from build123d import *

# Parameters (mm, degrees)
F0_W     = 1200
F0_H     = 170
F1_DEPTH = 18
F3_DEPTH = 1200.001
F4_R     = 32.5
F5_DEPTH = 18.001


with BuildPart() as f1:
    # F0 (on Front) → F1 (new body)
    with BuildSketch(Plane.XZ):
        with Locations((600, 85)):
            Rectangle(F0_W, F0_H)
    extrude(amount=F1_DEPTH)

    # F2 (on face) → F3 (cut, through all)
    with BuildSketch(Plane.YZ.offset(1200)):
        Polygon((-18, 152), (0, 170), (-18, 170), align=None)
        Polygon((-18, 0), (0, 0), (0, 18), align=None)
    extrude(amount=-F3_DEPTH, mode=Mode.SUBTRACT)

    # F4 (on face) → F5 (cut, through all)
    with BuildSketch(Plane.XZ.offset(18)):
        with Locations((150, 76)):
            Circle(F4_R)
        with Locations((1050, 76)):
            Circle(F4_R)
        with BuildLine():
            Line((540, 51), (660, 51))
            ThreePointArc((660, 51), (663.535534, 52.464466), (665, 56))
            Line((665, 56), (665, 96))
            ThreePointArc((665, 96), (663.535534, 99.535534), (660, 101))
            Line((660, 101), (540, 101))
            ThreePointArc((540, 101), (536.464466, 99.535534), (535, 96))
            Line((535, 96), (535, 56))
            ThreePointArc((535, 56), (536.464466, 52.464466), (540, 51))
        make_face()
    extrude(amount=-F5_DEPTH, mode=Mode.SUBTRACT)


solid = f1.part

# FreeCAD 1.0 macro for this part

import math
import FreeCAD as App
import Part
import Sketcher
from FreeCAD import Vector


def add_polygon(sketch, points):
    """Adds a closed chain of lines whose ends are joined by coincident constraints."""
    first, n = sketch.GeometryCount, len(points)
    for a, b in zip(points, points[1:] + points[:1]):
        sketch.addGeometry(Part.LineSegment(App.Vector(*a, 0), App.Vector(*b, 0)), False)
    for i in range(n):
        sketch.addConstraint(Sketcher.Constraint("Coincident", first + i, 2, first + (i + 1) % n, 1))

doc = App.newDocument("Part")
body = doc.addObject("PartDesign::Body", "Body")

sketch1 = body.newObject("Sketcher::SketchObject", "Sketch")
sketch1.AttachmentSupport = (doc.getObject("XZ_Plane"), [""])
sketch1.MapMode = "FlatFace"
add_polygon(sketch1, [(0, 170), (0, 0), (1200, 0), (1200, 170)])
sketch1.addConstraint(Sketcher.Constraint("Vertical", 0))
sketch1.addConstraint(Sketcher.Constraint("Horizontal", 1))
sketch1.addConstraint(Sketcher.Constraint("Vertical", 2))
sketch1.addConstraint(Sketcher.Constraint("Horizontal", 3))
sketch1.addConstraint(Sketcher.Constraint("Coincident", 0, 2, -1, 1))
sketch1.addConstraint(Sketcher.Constraint("DistanceX", 1, 1, 1, 2, 1200.0))
sketch1.addConstraint(Sketcher.Constraint("DistanceY", 0, 2, 0, 1, 170.0))
pad1 = body.newObject("PartDesign::Pad", "Pad")
pad1.Profile = sketch1
pad1.Length = 18

sketch2 = body.newObject("Sketcher::SketchObject", "Sketch001")
sketch2.AttachmentSupport = (doc.getObject("YZ_Plane"), [""])
sketch2.MapMode = "FlatFace"
sketch2.AttachmentOffset = App.Placement(Vector(0, 0, 1200), App.Rotation())
add_polygon(sketch2, [(-18, 152), (0, 170), (-18, 170)])
add_polygon(sketch2, [(-18, 0), (0, 0), (0, 18)])
sketch2.addConstraint(Sketcher.Constraint("Horizontal", 1))
sketch2.addConstraint(Sketcher.Constraint("Vertical", 2))
sketch2.addConstraint(Sketcher.Constraint("Horizontal", 3))
sketch2.addConstraint(Sketcher.Constraint("Vertical", 4))
sketch2.addConstraint(Sketcher.Constraint("Coincident", 3, 2, -1, 1))
sketch2.addConstraint(Sketcher.Constraint("PointOnObject", 0, 2, -2))
sketch2.addConstraint(Sketcher.Constraint("Parallel", 0, 5))
sketch2.addConstraint(Sketcher.Constraint("Vertical", 2, 2, 5, 2))
sketch2.addConstraint(Sketcher.Constraint("Equal", 3, 2))
sketch2.addConstraint(Sketcher.Constraint("DistanceX", 1, 2, 1, 1, 18.0))
sketch2.addConstraint(Sketcher.Constraint("DistanceY", -1, 1, 0, 2, 170.0))
pocket1 = body.newObject("PartDesign::Pocket", "Pocket")
pocket1.Profile = sketch2
pocket1.Type = "ThroughAll"

sketch3 = body.newObject("Sketcher::SketchObject", "Sketch002")
sketch3.AttachmentSupport = (doc.getObject("XZ_Plane"), [""])
sketch3.MapMode = "FlatFace"
sketch3.AttachmentOffset = App.Placement(Vector(0, 0, 18), App.Rotation())
sketch3.addGeometry(Part.Circle(Vector(150, 76, 0), Vector(0, 0, 1), 32.5), False)
sketch3.addGeometry(Part.Circle(Vector(1050, 76, 0), Vector(0, 0, 1), 32.5), False)
sketch3.addGeometry(Part.LineSegment(Vector(540, 51, 0), Vector(660, 51, 0)), False)
sketch3.addGeometry(Part.ArcOfCircle(Part.Circle(Vector(660, 56, 0), Vector(0, 0, 1), 5), math.radians(-90), math.radians(0)), False)
sketch3.addGeometry(Part.LineSegment(Vector(665, 56, 0), Vector(665, 96, 0)), False)
sketch3.addGeometry(Part.ArcOfCircle(Part.Circle(Vector(660, 96, 0), Vector(0, 0, 1), 5), math.radians(0), math.radians(90)), False)
sketch3.addGeometry(Part.LineSegment(Vector(660, 101, 0), Vector(540, 101, 0)), False)
sketch3.addGeometry(Part.ArcOfCircle(Part.Circle(Vector(540, 96, 0), Vector(0, 0, 1), 5), math.radians(90), math.radians(180)), False)
sketch3.addGeometry(Part.LineSegment(Vector(535, 96, 0), Vector(535, 56, 0)), False)
sketch3.addGeometry(Part.ArcOfCircle(Part.Circle(Vector(540, 56, 0), Vector(0, 0, 1), 5), math.radians(180), math.radians(270)), False)
sketch3.addConstraint(Sketcher.Constraint("Tangent", 2, 2, 3, 1))
sketch3.addConstraint(Sketcher.Constraint("Tangent", 3, 2, 4, 1))
sketch3.addConstraint(Sketcher.Constraint("Tangent", 4, 2, 5, 1))
sketch3.addConstraint(Sketcher.Constraint("Tangent", 5, 2, 6, 1))
sketch3.addConstraint(Sketcher.Constraint("Tangent", 6, 2, 7, 1))
sketch3.addConstraint(Sketcher.Constraint("Tangent", 7, 2, 8, 1))
sketch3.addConstraint(Sketcher.Constraint("Tangent", 8, 2, 9, 1))
sketch3.addConstraint(Sketcher.Constraint("Tangent", 9, 2, 2, 1))
sketch3.addConstraint(Sketcher.Constraint("Horizontal", 2))
sketch3.addConstraint(Sketcher.Constraint("Vertical", 4))
sketch3.addConstraint(Sketcher.Constraint("Horizontal", 6))
sketch3.addConstraint(Sketcher.Constraint("Vertical", 8))
sketch3.addConstraint(Sketcher.Constraint("Equal", 0, 1))
sketch3.addConstraint(Sketcher.Constraint("Equal", 3, 5))
sketch3.addConstraint(Sketcher.Constraint("Equal", 5, 7))
sketch3.addConstraint(Sketcher.Constraint("Equal", 7, 9))
sketch3.addConstraint(Sketcher.Constraint("Horizontal", 0, 3, 1, 3))
sketch3.addConstraint(Sketcher.Constraint("Diameter", 0, 65.0))
sketch3.addConstraint(Sketcher.Constraint("Radius", 3, 5.0))
sketch3.addConstraint(Sketcher.Constraint("DistanceX", 2, 1, 2, 2, 120.0))
sketch3.addConstraint(Sketcher.Constraint("DistanceY", 4, 1, 4, 2, 40.0))
sketch3.addConstraint(Sketcher.Constraint("DistanceX", -1, 1, 0, 3, 150.0))
sketch3.addConstraint(Sketcher.Constraint("DistanceY", -1, 1, 0, 3, 76.0))
sketch3.addConstraint(Sketcher.Constraint("DistanceX", -1, 1, 1, 3, 1050.0))
sketch3.addConstraint(Sketcher.Constraint("DistanceX", -1, 1, 3, 3, 660.0))
sketch3.addConstraint(Sketcher.Constraint("DistanceY", -1, 1, 3, 3, 56.0))
pocket2 = body.newObject("PartDesign::Pocket", "Pocket001")
pocket2.Profile = sketch3
pocket2.Type = "ThroughAll"

doc.recompute()
